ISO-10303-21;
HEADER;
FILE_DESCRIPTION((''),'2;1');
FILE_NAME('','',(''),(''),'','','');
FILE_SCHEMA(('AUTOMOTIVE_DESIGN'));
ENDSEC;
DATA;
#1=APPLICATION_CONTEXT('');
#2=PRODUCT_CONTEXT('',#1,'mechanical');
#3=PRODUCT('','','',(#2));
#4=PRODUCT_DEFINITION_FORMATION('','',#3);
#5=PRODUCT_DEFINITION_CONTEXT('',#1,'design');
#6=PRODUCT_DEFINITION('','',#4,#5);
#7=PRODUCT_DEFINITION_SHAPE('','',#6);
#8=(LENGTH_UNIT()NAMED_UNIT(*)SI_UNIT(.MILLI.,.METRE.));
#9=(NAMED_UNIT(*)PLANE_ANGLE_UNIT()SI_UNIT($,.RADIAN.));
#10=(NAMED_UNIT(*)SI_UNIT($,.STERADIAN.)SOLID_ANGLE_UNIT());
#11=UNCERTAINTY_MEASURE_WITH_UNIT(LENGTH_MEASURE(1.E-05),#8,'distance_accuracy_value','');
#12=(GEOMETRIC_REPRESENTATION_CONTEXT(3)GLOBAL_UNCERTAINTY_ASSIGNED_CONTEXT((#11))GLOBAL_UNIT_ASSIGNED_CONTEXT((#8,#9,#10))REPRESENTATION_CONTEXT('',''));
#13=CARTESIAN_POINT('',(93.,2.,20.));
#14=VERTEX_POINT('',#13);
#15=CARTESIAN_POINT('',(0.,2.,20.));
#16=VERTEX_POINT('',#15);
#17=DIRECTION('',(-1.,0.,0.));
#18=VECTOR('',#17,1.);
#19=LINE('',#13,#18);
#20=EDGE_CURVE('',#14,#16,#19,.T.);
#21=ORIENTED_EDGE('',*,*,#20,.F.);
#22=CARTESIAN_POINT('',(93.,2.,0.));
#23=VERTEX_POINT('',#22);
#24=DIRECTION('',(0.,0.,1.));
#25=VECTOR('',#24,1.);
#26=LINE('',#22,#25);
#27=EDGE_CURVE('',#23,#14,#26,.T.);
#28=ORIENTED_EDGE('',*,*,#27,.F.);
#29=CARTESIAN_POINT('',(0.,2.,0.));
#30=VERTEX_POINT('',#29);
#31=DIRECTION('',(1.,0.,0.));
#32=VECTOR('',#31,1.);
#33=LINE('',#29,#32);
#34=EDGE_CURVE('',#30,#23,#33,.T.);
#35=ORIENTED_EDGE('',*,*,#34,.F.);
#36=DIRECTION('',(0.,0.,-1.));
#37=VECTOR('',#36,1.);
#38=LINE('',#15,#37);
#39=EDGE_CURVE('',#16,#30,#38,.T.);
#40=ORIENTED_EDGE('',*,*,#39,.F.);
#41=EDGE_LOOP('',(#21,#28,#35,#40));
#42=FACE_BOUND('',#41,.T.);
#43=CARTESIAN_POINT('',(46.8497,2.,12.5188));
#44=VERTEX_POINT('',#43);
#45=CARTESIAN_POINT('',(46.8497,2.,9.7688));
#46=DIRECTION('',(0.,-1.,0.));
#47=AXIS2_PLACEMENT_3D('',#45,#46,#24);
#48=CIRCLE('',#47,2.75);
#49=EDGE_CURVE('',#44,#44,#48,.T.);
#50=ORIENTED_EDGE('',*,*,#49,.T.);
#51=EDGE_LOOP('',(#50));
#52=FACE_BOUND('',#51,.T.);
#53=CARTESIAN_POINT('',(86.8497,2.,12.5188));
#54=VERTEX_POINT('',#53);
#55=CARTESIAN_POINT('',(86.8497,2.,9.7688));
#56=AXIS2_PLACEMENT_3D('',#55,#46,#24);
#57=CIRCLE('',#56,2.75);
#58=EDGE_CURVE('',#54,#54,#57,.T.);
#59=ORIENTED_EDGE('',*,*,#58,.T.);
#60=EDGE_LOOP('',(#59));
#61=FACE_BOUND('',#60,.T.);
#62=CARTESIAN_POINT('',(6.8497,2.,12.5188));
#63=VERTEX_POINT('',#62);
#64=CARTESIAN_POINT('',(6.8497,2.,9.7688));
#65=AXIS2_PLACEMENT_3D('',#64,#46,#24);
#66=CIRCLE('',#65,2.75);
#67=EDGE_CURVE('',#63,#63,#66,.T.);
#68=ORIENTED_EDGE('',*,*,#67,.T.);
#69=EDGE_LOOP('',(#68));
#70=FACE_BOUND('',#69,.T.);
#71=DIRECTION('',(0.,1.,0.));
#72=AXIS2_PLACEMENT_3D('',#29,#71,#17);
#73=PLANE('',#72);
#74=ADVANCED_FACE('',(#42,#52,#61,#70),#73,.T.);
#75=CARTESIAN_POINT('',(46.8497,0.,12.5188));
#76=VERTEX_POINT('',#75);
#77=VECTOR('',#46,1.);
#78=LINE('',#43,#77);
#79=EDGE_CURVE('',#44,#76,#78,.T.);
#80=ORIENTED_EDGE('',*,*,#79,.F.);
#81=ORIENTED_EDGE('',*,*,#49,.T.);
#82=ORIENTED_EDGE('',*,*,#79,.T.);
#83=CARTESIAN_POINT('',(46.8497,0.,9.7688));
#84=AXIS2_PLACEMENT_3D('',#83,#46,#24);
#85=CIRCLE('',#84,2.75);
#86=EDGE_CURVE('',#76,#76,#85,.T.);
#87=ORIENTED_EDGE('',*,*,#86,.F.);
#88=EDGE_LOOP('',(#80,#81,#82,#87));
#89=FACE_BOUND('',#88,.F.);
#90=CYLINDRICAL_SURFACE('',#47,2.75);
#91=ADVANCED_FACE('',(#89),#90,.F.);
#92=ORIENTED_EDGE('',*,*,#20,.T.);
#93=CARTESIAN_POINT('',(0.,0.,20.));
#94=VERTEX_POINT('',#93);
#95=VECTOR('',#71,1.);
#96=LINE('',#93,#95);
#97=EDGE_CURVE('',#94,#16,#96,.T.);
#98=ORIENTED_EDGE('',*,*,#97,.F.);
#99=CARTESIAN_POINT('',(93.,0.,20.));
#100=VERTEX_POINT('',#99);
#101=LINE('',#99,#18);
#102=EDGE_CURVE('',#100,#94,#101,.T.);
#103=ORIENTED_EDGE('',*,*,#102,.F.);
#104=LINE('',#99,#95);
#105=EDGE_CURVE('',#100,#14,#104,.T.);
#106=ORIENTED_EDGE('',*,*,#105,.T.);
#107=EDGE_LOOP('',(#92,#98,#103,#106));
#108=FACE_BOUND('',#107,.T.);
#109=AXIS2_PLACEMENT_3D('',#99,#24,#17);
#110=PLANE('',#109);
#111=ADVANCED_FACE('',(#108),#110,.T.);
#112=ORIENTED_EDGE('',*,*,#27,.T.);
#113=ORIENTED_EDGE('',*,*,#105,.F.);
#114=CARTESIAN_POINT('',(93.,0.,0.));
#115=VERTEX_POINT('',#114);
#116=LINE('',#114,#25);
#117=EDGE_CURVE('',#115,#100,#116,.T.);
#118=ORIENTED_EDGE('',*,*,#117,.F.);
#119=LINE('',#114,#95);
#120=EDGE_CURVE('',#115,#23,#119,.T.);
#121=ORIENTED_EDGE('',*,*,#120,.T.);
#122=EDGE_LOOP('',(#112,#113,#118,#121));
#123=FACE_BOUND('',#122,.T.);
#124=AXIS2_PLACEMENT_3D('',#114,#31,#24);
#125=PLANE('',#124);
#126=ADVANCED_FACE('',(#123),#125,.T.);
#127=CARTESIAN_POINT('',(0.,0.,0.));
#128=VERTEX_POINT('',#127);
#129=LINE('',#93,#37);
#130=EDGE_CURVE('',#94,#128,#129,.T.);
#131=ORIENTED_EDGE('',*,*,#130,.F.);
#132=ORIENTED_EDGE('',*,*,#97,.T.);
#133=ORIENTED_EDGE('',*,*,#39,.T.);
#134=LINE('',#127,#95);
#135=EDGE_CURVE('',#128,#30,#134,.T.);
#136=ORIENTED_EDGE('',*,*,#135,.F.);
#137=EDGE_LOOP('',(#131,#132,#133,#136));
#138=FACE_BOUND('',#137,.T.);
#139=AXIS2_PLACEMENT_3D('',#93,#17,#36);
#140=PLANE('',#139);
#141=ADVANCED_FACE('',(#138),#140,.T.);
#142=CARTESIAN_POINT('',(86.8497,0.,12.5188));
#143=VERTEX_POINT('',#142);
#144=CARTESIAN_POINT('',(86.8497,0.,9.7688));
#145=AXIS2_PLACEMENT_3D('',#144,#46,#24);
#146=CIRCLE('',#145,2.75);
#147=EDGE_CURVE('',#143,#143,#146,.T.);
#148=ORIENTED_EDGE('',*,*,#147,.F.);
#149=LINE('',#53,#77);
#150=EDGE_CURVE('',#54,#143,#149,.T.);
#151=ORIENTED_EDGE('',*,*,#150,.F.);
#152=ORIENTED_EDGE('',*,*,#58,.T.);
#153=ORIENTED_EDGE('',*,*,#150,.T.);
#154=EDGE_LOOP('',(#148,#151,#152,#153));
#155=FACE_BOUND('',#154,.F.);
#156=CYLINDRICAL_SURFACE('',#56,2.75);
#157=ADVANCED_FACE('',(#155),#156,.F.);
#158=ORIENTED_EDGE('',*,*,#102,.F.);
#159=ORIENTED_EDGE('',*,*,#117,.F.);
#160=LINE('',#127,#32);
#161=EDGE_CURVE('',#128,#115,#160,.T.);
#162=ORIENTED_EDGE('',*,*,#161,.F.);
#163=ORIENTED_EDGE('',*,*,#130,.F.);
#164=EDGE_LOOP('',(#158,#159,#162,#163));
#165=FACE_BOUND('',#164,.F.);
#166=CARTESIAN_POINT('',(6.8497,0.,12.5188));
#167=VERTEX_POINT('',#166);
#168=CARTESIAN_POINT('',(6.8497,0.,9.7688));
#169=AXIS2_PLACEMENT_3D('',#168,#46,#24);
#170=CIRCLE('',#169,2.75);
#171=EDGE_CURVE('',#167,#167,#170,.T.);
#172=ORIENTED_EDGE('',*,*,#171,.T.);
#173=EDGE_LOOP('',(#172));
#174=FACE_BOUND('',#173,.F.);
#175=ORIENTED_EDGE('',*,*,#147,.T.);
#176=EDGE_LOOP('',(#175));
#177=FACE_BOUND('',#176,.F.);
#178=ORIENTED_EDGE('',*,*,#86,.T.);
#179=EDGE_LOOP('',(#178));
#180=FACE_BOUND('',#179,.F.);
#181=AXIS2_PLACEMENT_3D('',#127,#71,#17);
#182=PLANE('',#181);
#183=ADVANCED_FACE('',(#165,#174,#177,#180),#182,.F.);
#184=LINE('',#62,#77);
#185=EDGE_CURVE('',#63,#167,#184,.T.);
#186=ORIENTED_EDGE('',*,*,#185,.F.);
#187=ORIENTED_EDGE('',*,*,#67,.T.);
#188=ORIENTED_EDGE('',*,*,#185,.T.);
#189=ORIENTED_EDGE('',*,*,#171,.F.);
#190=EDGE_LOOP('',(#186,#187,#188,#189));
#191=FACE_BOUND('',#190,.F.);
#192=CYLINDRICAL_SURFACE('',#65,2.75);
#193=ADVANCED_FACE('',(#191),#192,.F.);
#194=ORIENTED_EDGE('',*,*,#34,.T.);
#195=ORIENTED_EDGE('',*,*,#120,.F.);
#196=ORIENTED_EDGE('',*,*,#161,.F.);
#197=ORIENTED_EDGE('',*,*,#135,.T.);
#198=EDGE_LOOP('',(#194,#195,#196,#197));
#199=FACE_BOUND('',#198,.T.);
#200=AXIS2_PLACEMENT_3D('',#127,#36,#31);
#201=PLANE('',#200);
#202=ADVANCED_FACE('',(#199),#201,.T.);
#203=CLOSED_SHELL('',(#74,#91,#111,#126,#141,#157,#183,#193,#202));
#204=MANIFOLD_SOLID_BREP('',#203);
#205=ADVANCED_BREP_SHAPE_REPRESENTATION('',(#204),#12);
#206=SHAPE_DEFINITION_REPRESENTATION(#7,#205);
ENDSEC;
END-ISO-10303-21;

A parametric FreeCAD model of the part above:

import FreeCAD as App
import Part
import Sketcher

V = App.Vector
Q = App.Units.Quantity

doc = App.newDocument("Part")
body = doc.addObject("PartDesign::Body", "Body")

# Sketch on XZ plane
sketch1 = body.newObject("Sketcher::SketchObject", "Sketch")
sketch1.AttachmentSupport = (doc.getObject("XZ_Plane"), [""])
sketch1.MapMode = "FlatFace"
sketch1.addGeometry([
    Part.LineSegment(V(93, 0, 0), V(0, 0, 0)),
    Part.LineSegment(V(0, 0, 0), V(0, 20, 0)),
    Part.LineSegment(V(0, 20, 0), V(93, 20, 0)),
    Part.LineSegment(V(93, 20, 0), V(93, 0, 0)),
], False)
sketch1.addConstraint([
    Sketcher.Constraint("Coincident", 0, 2, 1, 1),
    Sketcher.Constraint("Coincident", 1, 2, 2, 1),
    Sketcher.Constraint("Coincident", 2, 2, 3, 1),
    Sketcher.Constraint("Coincident", 3, 2, 0, 1),
    Sketcher.Constraint("Horizontal", 0),
    Sketcher.Constraint("Vertical", 1),
    Sketcher.Constraint("Horizontal", 2),
    Sketcher.Constraint("Vertical", 3),
    Sketcher.Constraint("Coincident", 0, 2, -1, 1),
    Sketcher.Constraint("DistanceX", 0, 2, 0, 1, Q("93 mm")),
    Sketcher.Constraint("DistanceY", 1, 1, 1, 2, Q("20 mm")),
])
pad1 = body.newObject("PartDesign::Pad", "Pad")
pad1.Profile = sketch1
pad1.Length = 2
pad1.Reversed = True

# Sketch on XZ plane
sketch2 = body.newObject("Sketcher::SketchObject", "Sketch001")
sketch2.AttachmentSupport = (doc.getObject("XZ_Plane"), [""])
sketch2.MapMode = "FlatFace"
sketch2.AttachmentOffset = App.Placement(V(0, 0, -2), App.Rotation())
sketch2.addGeometry(Part.Circle(V(6.8497, 9.7688, 0), V(0, 0, 1), 2.75), False)
sketch2.addConstraint([
    Sketcher.Constraint("Diameter", 0, Q("5.5 mm")),
    Sketcher.Constraint("DistanceX", -1, 1, 0, 3, Q("6.8497 mm")),
    Sketcher.Constraint("DistanceY", -1, 1, 0, 3, Q("9.7688 mm")),
])
doc.recompute()
hole = body.newObject("PartDesign::Hole", "Hole")
hole.Profile = sketch2
hole.ThreadType = "None"
hole.Diameter = 5.5
hole.DepthType = "ThroughAll"
hole.Reversed = True
doc.recompute()

linearpattern = body.newObject("PartDesign::LinearPattern", "LinearPattern")
linearpattern.Originals = [hole]
linearpattern.Direction = (doc.getObject("X_Axis"), [""])
linearpattern.Mode = "offset"
linearpattern.Offset = 40
linearpattern.Occurrences = 3
body.Tip = linearpattern

doc.recompute()
